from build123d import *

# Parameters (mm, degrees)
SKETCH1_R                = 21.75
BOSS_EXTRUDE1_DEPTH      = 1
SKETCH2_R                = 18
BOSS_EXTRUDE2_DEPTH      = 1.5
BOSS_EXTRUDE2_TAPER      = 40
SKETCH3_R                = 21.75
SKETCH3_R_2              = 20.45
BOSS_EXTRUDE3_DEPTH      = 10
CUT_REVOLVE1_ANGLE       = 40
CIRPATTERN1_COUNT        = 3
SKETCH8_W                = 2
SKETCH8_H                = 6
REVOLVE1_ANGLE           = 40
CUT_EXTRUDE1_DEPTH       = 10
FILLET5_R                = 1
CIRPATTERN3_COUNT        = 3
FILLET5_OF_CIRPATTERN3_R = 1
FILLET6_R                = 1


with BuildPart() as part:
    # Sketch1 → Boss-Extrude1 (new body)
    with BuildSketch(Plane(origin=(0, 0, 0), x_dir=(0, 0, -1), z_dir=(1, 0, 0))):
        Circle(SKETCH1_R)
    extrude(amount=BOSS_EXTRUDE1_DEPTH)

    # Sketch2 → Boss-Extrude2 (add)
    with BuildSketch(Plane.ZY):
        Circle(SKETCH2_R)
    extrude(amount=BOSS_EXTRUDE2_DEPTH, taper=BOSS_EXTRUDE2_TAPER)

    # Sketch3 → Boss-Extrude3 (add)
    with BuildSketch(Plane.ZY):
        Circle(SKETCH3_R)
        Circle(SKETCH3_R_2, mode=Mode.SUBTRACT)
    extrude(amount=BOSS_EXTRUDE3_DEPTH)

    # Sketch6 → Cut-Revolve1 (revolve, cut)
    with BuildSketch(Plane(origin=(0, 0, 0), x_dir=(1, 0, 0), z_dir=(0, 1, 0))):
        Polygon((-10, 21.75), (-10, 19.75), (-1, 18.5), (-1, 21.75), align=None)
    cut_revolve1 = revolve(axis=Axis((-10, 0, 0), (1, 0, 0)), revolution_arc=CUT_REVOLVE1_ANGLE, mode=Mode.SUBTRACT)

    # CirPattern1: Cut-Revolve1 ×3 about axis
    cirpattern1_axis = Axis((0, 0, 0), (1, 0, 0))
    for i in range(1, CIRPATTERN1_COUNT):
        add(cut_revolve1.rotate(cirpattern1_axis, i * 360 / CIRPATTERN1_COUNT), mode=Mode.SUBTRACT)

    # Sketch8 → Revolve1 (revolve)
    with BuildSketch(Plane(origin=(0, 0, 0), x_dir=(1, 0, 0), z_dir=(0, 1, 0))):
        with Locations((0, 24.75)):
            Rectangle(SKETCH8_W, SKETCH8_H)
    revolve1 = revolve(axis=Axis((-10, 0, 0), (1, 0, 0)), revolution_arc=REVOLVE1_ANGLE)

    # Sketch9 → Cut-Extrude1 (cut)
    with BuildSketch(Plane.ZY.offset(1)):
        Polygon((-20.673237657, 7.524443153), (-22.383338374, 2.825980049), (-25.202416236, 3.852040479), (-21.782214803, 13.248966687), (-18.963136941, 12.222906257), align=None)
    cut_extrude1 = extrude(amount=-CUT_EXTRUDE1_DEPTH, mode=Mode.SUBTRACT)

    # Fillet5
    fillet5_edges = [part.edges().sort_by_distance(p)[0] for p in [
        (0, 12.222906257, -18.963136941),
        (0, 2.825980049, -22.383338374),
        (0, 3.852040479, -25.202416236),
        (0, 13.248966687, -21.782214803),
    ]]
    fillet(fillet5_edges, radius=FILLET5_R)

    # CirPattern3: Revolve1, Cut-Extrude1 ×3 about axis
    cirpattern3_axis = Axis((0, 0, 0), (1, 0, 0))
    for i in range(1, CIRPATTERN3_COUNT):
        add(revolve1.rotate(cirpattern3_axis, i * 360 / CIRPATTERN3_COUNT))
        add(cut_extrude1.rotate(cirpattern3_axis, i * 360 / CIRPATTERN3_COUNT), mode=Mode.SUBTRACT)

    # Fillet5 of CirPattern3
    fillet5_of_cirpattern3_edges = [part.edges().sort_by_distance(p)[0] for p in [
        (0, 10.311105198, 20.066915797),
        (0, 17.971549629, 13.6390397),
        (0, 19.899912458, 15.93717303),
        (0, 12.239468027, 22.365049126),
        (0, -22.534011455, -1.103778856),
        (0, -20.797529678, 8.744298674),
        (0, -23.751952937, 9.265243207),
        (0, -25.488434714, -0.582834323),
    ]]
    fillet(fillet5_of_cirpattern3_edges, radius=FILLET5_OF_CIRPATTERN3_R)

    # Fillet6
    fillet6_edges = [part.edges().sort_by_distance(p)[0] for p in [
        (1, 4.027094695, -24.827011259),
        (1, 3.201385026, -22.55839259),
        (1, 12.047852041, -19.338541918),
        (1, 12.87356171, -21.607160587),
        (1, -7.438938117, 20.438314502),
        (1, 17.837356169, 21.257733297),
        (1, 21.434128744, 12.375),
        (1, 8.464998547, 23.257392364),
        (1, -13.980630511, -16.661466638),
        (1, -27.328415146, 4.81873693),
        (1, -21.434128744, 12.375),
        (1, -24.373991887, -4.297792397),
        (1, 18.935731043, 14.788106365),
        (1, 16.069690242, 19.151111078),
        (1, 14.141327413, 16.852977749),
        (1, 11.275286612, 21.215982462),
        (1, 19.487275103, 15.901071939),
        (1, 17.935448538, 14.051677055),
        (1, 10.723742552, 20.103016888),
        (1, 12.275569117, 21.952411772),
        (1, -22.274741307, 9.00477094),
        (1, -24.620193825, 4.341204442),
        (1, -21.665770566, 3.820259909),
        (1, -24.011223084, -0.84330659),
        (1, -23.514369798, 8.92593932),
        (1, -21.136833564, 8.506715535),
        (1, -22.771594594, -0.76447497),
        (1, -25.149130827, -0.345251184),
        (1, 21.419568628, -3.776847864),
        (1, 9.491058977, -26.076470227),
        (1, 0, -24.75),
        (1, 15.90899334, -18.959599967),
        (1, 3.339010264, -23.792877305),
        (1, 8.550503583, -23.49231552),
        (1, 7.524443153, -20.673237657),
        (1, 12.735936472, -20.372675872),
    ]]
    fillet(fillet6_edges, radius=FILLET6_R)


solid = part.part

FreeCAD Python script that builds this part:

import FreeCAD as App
import Part
import Sketcher

V = App.Vector
Q = App.Units.Quantity


def edges_at(feature, points):
    """Names of the edges that pass closest to the given points."""
    edges = feature.Shape.Edges
    near = lambda p: min(range(len(edges)), key=lambda i: edges[i].distToShape(Part.Vertex(*p))[0])
    return sorted({f"Edge{near(p) + 1}" for p in points})


def add_polygon(sketch, points):
    """Adds a closed chain of lines whose ends are joined by coincident constraints."""
    first, n = sketch.GeometryCount, len(points)
    for a, b in zip(points, points[1:] + points[:1]):
        sketch.addGeometry(Part.LineSegment(App.Vector(*a, 0), App.Vector(*b, 0)), False)
    for i in range(n):
        sketch.addConstraint(Sketcher.Constraint("Coincident", first + i, 2, first + (i + 1) % n, 1))

doc = App.newDocument("Part")
body = doc.addObject("PartDesign::Body", "Body")

# Sketch on YZ plane
sketch1 = doc.addObject("Sketcher::SketchObject", "Sketch")
body.addObject(sketch1)
sketch1.AttachmentSupport = (doc.YZ_Plane, [""])
sketch1.MapMode = "FlatFace"
sketch1.addGeometry(Part.Circle(V(0, 0, 0), V(0, 0, 1), 22), False)
sketch1.addConstraint([
    Sketcher.Constraint("Coincident", 0, 3, -1, 1),
    Sketcher.Constraint("Diameter", 0, Q("43.5 mm")),
])
pad1 = doc.addObject("PartDesign::Pad", "Pad")
body.addObject(pad1)
pad1.Profile = sketch1
pad1.Length = 1

# Sketch on YZ plane
sketch2 = doc.addObject("Sketcher::SketchObject", "Sketch001")
body.addObject(sketch2)
sketch2.AttachmentSupport = (doc.YZ_Plane, [""])
sketch2.MapMode = "FlatFace"
sketch2.addGeometry(Part.Circle(V(0, 0, 0), V(0, 0, 1), 18), False)
sketch2.addConstraint([
    Sketcher.Constraint("Coincident", 0, 3, -1, 1),
    Sketcher.Constraint("Diameter", 0, Q("36 mm")),
])
pad2 = doc.addObject("PartDesign::Pad", "Pad001")
body.addObject(pad2)
pad2.Profile = sketch2
pad2.Length = 1.5
pad2.Reversed = True
pad2.TaperAngle = -40

# Sketch on YZ plane
sketch3 = doc.addObject("Sketcher::SketchObject", "Sketch002")
body.addObject(sketch3)
sketch3.AttachmentSupport = (doc.YZ_Plane, [""])
sketch3.MapMode = "FlatFace"
sketch3.addGeometry([
    Part.Circle(V(0, 0, 0), V(0, 0, 1), 22),
    Part.Circle(V(0, 0, 0), V(0, 0, 1), 20),
], False)
sketch3.addConstraint([
    Sketcher.Constraint("Coincident", 0, 3, -1, 1),
    Sketcher.Constraint("Coincident", 1, 3, -1, 1),
    Sketcher.Constraint("Diameter", 0, Q("43.5 mm")),
    Sketcher.Constraint("Diameter", 1, Q("40.9 mm")),
])
pad3 = doc.addObject("PartDesign::Pad", "Pad002")
body.addObject(pad3)
pad3.Profile = sketch3
pad3.Length = 10
pad3.Reversed = True

# Sketch on XZ plane
sketch4 = doc.addObject("Sketcher::SketchObject", "Sketch003")
body.addObject(sketch4)
sketch4.AttachmentSupport = (doc.XZ_Plane, [""])
sketch4.MapMode = "FlatFace"
add_polygon(sketch4, [(-10, -21.8), (-10, -19.8), (-1, -18.5), (-1, -21.8)])  # lines 0-3
sketch4.addConstraint([
    Sketcher.Constraint("Vertical", 0),
    Sketcher.Constraint("Vertical", 2),
    Sketcher.Constraint("Horizontal", 3),
    Sketcher.Constraint("DistanceX", 3, 2, 3, 1, Q("9 mm")),
    Sketcher.Constraint("DistanceY", 0, 1, 0, 2, Q("2 mm")),
    Sketcher.Constraint("DistanceX", 0, 2, -1, 1, Q("10 mm")),
    Sketcher.Constraint("DistanceY", 2, 2, 2, 1, Q("3.25 mm")),
    Sketcher.Constraint("DistanceY", 1, 2, -1, 1, Q("18.5 mm")),
])
groove = doc.addObject("PartDesign::Groove", "Groove")
body.addObject(groove)
groove.Profile = sketch4
groove.ReferenceAxis = (sketch4, ["H_Axis"])
groove.Angle = 40
doc.recompute()

polarpattern = doc.addObject("PartDesign::PolarPattern", "PolarPattern")
body.addObject(polarpattern)
polarpattern.Originals = [groove]
polarpattern.Axis = (doc.X_Axis, [""])
polarpattern.Angle = 360
polarpattern.Occurrences = 3
body.Tip = polarpattern

# Sketch on XZ plane
sketch5 = doc.addObject("Sketcher::SketchObject", "Sketch004")
body.addObject(sketch5)
sketch5.AttachmentSupport = (doc.XZ_Plane, [""])
sketch5.MapMode = "FlatFace"
add_polygon(sketch5, [(-1, -27.8), (-1, -21.8), (1, -21.8), (1, -27.8)])  # lines 0-3
sketch5.addConstraint([
    Sketcher.Constraint("Vertical", 0),
    Sketcher.Constraint("Horizontal", 1),
    Sketcher.Constraint("Vertical", 2),
    Sketcher.Constraint("Horizontal", 3),
    Sketcher.Constraint("DistanceX", 1, 1, 1, 2, Q("2 mm")),
    Sketcher.Constraint("DistanceY", 0, 1, 0, 2, Q("6 mm")),
    Sketcher.Constraint("DistanceX", 0, 2, -1, 1, Q("1 mm")),
    Sketcher.Constraint("DistanceY", 0, 2, -1, 1, Q("21.75 mm")),
])
revolution = doc.addObject("PartDesign::Revolution", "Revolution")
body.addObject(revolution)
revolution.Profile = sketch5
revolution.ReferenceAxis = (sketch5, ["H_Axis"])
revolution.Angle = 40

# Sketch on YZ plane
sketch6 = doc.addObject("Sketcher::SketchObject", "Sketch005")
body.addObject(sketch6)
sketch6.AttachmentSupport = (doc.YZ_Plane, [""])
sketch6.MapMode = "FlatFace"
sketch6.AttachmentOffset = App.Placement(V(0, 0, -1), App.Rotation())
add_polygon(sketch6, [(2.8, -22.4), (7.5, -20.7), (12.2, -19), (13.2, -21.8), (3.9, -25.2)])  # lines 0-4
sketch6.addConstraint([
    Sketcher.Constraint("Parallel", 0, 1),
    Sketcher.Constraint("Perpendicular", 1, 2),
    Sketcher.Constraint("Perpendicular", 2, 3),
    Sketcher.Constraint("Perpendicular", 3, 4),
    Sketcher.Constraint("Equal", 0, 1),
    Sketcher.Constraint("Angle", 0, Q("20 deg")),
    Sketcher.Constraint("Distance", 0, Q("5 mm")),
    Sketcher.Constraint("Distance", 2, Q("3 mm")),
    Sketcher.Constraint("DistanceX", -1, 1, 3, 2, Q("3.85204 mm")),
    Sketcher.Constraint("DistanceY", 4, 2, -1, 1, Q("22.383338 mm")),
])
pocket1 = doc.addObject("PartDesign::Pocket", "Pocket")
body.addObject(pocket1)
pocket1.Profile = sketch6
pocket1.Length = 10
pocket1.Reversed = True
doc.recompute()

fillet = doc.addObject("PartDesign::Fillet", "Fillet")
body.addObject(fillet)
fillet.Base = (pocket1, edges_at(pocket1, [
    (0, 12.223, -18.963),
    (0, 2.826, -22.383),
    (0, 3.852, -25.202),
    (0, 13.249, -21.782),
]))
fillet.Radius = 1
doc.recompute()

polarpattern2 = doc.addObject("PartDesign::PolarPattern", "PolarPattern001")
body.addObject(polarpattern2)
polarpattern2.Originals = [revolution, pocket1]
polarpattern2.Axis = (doc.X_Axis, [""])
polarpattern2.Angle = 360
polarpattern2.Occurrences = 3
body.Tip = polarpattern2
doc.recompute()

fillet2 = doc.addObject("PartDesign::Fillet", "Fillet001")
body.addObject(fillet2)
fillet2.Base = (polarpattern2, edges_at(polarpattern2, [
    (0, 10.311, 20.067),
    (0, 17.972, 13.639),
    (0, 19.9, 15.937),
    (0, 12.239, 22.365),
    (0, -22.534, -1.104),
    (0, -20.798, 8.744),
    (0, -23.752, 9.265),
    (0, -25.488, -0.583),
]))
fillet2.Radius = 1
doc.recompute()

fillet3 = doc.addObject("PartDesign::Fillet", "Fillet002")
body.addObject(fillet3)
fillet3.Base = (fillet2, edges_at(fillet2, [
    (1, 4.027, -24.827),
    (1, 3.201, -22.558),
    (1, 12.048, -19.339),
    (1, 12.874, -21.607),
    (1, -7.439, 20.438),
    (1, 17.837, 21.258),
    (1, 21.434, 12.375),
    (1, 8.465, 23.257),
    (1, -13.981, -16.661),
    (1, -27.328, 4.819),
    (1, -21.434, 12.375),
    (1, -24.374, -4.298),
    (1, 18.936, 14.788),
    (1, 16.07, 19.151),
    (1, 15.673, 15.567),
    (1, 11.275, 21.216),
    (1, 19.487, 15.901),
    (1, 17.935, 14.052),
    (1, 10.724, 20.103),
    (1, 12.276, 21.952),
    (1, -22.275, 9.005),
    (1, -24.62, 4.341),
    (0, -21.666, 3.82),
    (1, -24.011, -0.843),
    (1, -23.514, 8.926),
    (1, -21.137, 8.507),
    (1, -22.772, -0.764),
    (1, -25.149, -0.345),
    (1, 21.42, -3.777),
    (1, 9.491, -26.076),
    (1, 0, -24.75),
    (1, 15.909, -18.96),
    (1, 3.339, -23.793),
    (1, 8.551, -23.492),
    (1, 9.404, -19.989),
    (1, 12.736, -20.373),
]))
fillet3.Radius = 1

doc.recompute()
